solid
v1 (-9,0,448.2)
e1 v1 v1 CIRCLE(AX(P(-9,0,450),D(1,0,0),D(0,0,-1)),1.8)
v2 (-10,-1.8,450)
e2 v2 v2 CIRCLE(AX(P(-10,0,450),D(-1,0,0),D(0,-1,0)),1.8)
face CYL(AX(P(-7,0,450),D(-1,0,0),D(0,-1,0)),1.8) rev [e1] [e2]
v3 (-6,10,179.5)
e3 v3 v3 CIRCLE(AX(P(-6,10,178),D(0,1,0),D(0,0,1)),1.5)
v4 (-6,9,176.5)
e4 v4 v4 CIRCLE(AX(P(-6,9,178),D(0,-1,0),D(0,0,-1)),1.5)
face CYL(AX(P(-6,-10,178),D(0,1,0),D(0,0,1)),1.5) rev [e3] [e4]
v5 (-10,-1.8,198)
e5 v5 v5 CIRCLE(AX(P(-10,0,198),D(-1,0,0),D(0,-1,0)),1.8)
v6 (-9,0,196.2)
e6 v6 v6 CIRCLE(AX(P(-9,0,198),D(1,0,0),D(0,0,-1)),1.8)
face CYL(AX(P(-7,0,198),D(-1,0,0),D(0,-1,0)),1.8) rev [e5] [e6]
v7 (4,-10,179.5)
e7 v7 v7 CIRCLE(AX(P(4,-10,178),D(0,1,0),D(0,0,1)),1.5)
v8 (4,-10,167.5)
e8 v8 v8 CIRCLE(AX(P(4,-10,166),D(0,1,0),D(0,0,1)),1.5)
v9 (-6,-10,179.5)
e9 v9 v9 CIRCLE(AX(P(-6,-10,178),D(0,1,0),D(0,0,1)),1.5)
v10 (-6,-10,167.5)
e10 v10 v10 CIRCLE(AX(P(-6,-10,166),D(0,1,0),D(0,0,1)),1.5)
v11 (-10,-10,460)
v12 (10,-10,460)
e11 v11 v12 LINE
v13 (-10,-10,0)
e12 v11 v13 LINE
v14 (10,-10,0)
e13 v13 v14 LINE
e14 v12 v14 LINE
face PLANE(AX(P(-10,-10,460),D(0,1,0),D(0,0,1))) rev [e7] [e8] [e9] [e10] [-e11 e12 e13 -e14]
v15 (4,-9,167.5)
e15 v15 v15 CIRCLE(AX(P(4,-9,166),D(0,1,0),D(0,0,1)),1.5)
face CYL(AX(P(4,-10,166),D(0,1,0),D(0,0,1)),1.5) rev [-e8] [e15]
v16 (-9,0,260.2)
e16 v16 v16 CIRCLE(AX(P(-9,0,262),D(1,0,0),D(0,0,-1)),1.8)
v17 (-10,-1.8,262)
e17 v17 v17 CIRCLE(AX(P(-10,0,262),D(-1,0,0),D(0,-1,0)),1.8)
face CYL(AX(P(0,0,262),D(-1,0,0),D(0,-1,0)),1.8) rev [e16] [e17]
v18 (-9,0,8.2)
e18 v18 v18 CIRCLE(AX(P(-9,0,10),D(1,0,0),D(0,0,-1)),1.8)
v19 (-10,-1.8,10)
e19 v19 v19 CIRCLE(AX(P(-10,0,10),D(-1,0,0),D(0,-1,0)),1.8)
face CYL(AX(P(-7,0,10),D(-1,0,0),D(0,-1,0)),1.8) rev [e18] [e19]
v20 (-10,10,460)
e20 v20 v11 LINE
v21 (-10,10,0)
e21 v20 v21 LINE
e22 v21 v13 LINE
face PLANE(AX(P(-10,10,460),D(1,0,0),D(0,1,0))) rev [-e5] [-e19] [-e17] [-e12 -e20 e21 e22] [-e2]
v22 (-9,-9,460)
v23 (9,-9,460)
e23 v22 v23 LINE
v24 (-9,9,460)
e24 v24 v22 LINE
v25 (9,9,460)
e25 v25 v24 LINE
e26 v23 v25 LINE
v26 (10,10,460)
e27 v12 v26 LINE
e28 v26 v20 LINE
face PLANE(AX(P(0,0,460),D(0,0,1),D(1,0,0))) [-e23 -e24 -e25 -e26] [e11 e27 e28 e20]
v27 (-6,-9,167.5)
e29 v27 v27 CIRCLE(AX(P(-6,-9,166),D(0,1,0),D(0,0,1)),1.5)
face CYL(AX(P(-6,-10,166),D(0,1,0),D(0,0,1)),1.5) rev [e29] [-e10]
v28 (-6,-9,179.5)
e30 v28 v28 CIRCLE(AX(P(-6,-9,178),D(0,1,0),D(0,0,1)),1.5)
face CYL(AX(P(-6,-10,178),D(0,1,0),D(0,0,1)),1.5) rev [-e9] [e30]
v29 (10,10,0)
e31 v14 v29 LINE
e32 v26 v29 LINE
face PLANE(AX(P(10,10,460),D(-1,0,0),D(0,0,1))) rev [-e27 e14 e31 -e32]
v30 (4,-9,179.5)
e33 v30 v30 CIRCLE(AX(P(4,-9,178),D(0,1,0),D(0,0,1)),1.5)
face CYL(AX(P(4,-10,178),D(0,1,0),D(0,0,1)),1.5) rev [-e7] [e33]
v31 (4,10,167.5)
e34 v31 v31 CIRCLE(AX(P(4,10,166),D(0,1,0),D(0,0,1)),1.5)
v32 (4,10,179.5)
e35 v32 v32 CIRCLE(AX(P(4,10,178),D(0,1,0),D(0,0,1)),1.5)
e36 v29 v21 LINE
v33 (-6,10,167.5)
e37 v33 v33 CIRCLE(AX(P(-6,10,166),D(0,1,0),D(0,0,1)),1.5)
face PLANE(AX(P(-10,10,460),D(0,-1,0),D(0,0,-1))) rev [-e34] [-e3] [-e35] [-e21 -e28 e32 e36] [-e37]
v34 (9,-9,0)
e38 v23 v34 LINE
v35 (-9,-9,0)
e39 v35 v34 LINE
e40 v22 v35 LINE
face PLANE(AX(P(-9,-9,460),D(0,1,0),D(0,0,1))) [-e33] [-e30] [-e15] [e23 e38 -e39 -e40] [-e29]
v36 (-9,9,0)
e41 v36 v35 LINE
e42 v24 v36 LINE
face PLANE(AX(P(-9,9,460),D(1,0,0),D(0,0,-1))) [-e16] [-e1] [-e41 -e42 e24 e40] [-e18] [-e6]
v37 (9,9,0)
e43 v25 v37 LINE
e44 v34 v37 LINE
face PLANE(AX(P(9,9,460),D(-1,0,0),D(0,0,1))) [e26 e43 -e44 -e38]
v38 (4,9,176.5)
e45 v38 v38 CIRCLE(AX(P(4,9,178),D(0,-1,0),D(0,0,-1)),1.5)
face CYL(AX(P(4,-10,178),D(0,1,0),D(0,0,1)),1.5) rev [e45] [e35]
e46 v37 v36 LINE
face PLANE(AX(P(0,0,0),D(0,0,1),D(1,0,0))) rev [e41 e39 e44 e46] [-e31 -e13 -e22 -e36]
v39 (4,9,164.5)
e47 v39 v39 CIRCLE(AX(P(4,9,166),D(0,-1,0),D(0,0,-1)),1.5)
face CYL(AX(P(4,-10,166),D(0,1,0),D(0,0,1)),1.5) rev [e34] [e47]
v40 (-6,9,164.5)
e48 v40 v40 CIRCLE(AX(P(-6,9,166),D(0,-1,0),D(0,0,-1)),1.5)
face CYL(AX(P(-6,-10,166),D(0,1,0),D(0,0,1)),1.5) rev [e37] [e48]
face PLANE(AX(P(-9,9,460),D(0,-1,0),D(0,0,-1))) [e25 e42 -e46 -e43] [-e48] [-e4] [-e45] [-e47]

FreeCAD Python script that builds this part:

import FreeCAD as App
import Part
import Sketcher

V = App.Vector

doc = App.newDocument("Part")
body = doc.addObject("PartDesign::Body", "Body")

# Sketch on XY plane
sketch1 = body.newObject("Sketcher::SketchObject", "Sketch")
sketch1.AttachmentSupport = (doc.getObject("XY_Plane"), [""])
sketch1.MapMode = "FlatFace"
sketch1.addGeometry([
    Part.LineSegment(V(-10, 10, 0), V(-10, -10, 0)),  # 0
    Part.LineSegment(V(-10, -10, 0), V(10, -10, 0)),  # 1
    Part.LineSegment(V(10, -10, 0), V(10, 10, 0)),  # 2
    Part.LineSegment(V(10, 10, 0), V(-10, 10, 0)),  # 3
    Part.LineSegment(V(9, -9, 0), V(-9, -9, 0)),  # 4
    Part.LineSegment(V(-9, -9, 0), V(-9, 9, 0)),  # 5
    Part.LineSegment(V(-9, 9, 0), V(9, 9, 0)),  # 6
    Part.LineSegment(V(9, 9, 0), V(9, -9, 0)),  # 7
], False)
sketch1.addConstraint([
    Sketcher.Constraint("Coincident", 0, 2, 1, 1),
    Sketcher.Constraint("Coincident", 1, 2, 2, 1),
    Sketcher.Constraint("Coincident", 2, 2, 3, 1),
    Sketcher.Constraint("Coincident", 3, 2, 0, 1),
    Sketcher.Constraint("Coincident", 4, 2, 5, 1),
    Sketcher.Constraint("Coincident", 5, 2, 6, 1),
    Sketcher.Constraint("Coincident", 6, 2, 7, 1),
    Sketcher.Constraint("Coincident", 7, 2, 4, 1),
    Sketcher.Constraint("Vertical", 0),
    Sketcher.Constraint("Horizontal", 1),
    Sketcher.Constraint("Vertical", 2),
    Sketcher.Constraint("Horizontal", 3),
    Sketcher.Constraint("Horizontal", 4),
    Sketcher.Constraint("Vertical", 5),
    Sketcher.Constraint("Horizontal", 6),
    Sketcher.Constraint("Vertical", 7),
    Sketcher.Constraint("Symmetric", 0, 2, 2, 2, -1, 1),
    Sketcher.Constraint("Symmetric", 4, 2, 6, 2, -1, 1),
    Sketcher.Constraint("Equal", 3, 0),
    Sketcher.Constraint("Equal", 6, 5),
    Sketcher.Constraint("DistanceX", 1, 1, 1, 2, 20.0),
    Sketcher.Constraint("DistanceX", 4, 2, 4, 1, 18.0),
])
pad1 = body.newObject("PartDesign::Pad", "Pad")
pad1.Profile = sketch1
pad1.Length = 460

# Sketch on YZ plane
sketch2 = body.newObject("Sketcher::SketchObject", "Sketch001")
sketch2.AttachmentSupport = (doc.getObject("YZ_Plane"), [""])
sketch2.MapMode = "FlatFace"
sketch2.AttachmentOffset = App.Placement(V(0, 0, -10), App.Rotation())
sketch2.addGeometry(Part.Circle(V(0, 10, 0), V(0, 0, 1), 1.8), False)
sketch2.addConstraint([
    Sketcher.Constraint("PointOnObject", 0, 3, -2),
    Sketcher.Constraint("Diameter", 0, 3.6),
    Sketcher.Constraint("DistanceY", -1, 1, 0, 3, 10.0),
])
pocket1 = body.newObject("PartDesign::Pocket", "Pocket")
pocket1.Profile = sketch2
pocket1.Length = 3
pocket1.Reversed = True

# Sketch on YZ plane
sketch3 = body.newObject("Sketcher::SketchObject", "Sketch002")
sketch3.AttachmentSupport = (doc.getObject("YZ_Plane"), [""])
sketch3.MapMode = "FlatFace"
sketch3.AttachmentOffset = App.Placement(V(0, 0, -10), App.Rotation())
sketch3.addGeometry(Part.Circle(V(0, 198, 0), V(0, 0, 1), 1.8), False)
sketch3.addConstraint([
    Sketcher.Constraint("PointOnObject", 0, 3, -2),
    Sketcher.Constraint("Diameter", 0, 3.6),
    Sketcher.Constraint("DistanceY", -1, 1, 0, 3, 198.0),
])
pocket2 = body.newObject("PartDesign::Pocket", "Pocket001")
pocket2.Profile = sketch3
pocket2.Length = 3
pocket2.Reversed = True

# Sketch on YZ plane
sketch4 = body.newObject("Sketcher::SketchObject", "Sketch003")
sketch4.AttachmentSupport = (doc.getObject("YZ_Plane"), [""])
sketch4.MapMode = "FlatFace"
sketch4.AttachmentOffset = App.Placement(V(0, 0, -10), App.Rotation())
sketch4.addGeometry(Part.Circle(V(0, 450, 0), V(0, 0, 1), 1.8), False)
sketch4.addConstraint([
    Sketcher.Constraint("PointOnObject", 0, 3, -2),
    Sketcher.Constraint("Diameter", 0, 3.6),
    Sketcher.Constraint("DistanceY", -1, 1, 0, 3, 450.0),
])
pocket3 = body.newObject("PartDesign::Pocket", "Pocket002")
pocket3.Profile = sketch4
pocket3.Length = 3
pocket3.Reversed = True

# Sketch on YZ plane
sketch5 = body.newObject("Sketcher::SketchObject", "Sketch004")
sketch5.AttachmentSupport = (doc.getObject("YZ_Plane"), [""])
sketch5.MapMode = "FlatFace"
sketch5.AttachmentOffset = App.Placement(V(0, 0, -10), App.Rotation())
sketch5.addGeometry(Part.Circle(V(0, 262, 0), V(0, 0, 1), 1.8), False)
sketch5.addConstraint([
    Sketcher.Constraint("PointOnObject", 0, 3, -2),
    Sketcher.Constraint("Diameter", 0, 3.6),
    Sketcher.Constraint("DistanceY", -1, 1, 0, 3, 262.0),
])
pocket4 = body.newObject("PartDesign::Pocket", "Pocket003")
pocket4.Profile = sketch5
pocket4.Length = 10
pocket4.Reversed = True

# Sketch on XZ plane
sketch6 = body.newObject("Sketcher::SketchObject", "Sketch005")
sketch6.AttachmentSupport = (doc.getObject("XZ_Plane"), [""])
sketch6.MapMode = "FlatFace"
sketch6.AttachmentOffset = App.Placement(V(0, 0, -10), App.Rotation())
sketch6.addGeometry([
    Part.Circle(V(4, 166, 0), V(0, 0, 1), 1.5),
    Part.Circle(V(-6, 166, 0), V(0, 0, 1), 1.5),
    Part.Circle(V(4, 178, 0), V(0, 0, 1), 1.5),
    Part.Circle(V(-6, 178, 0), V(0, 0, 1), 1.5),
], False)
sketch6.addConstraint([
    Sketcher.Constraint("Equal", 0, 1),
    Sketcher.Constraint("Equal", 1, 2),
    Sketcher.Constraint("Equal", 2, 3),
    Sketcher.Constraint("Horizontal", 0, 3, 1, 3),
    Sketcher.Constraint("Horizontal", 2, 3, 3, 3),
    Sketcher.Constraint("Vertical", 0, 3, 2, 3),
    Sketcher.Constraint("Vertical", 1, 3, 3, 3),
    Sketcher.Constraint("Diameter", 0, 3.0),
    Sketcher.Constraint("DistanceX", -1, 1, 0, 3, 4.0),
    Sketcher.Constraint("DistanceY", -1, 1, 0, 3, 166.0),
    Sketcher.Constraint("DistanceX", 1, 3, -1, 1, 6.0),
    Sketcher.Constraint("DistanceY", -1, 1, 2, 3, 178.0),
])
pocket5 = body.newObject("PartDesign::Pocket", "Pocket004")
pocket5.Profile = sketch6
pocket5.Length = 20
pocket5.Reversed = True

doc.recompute()
